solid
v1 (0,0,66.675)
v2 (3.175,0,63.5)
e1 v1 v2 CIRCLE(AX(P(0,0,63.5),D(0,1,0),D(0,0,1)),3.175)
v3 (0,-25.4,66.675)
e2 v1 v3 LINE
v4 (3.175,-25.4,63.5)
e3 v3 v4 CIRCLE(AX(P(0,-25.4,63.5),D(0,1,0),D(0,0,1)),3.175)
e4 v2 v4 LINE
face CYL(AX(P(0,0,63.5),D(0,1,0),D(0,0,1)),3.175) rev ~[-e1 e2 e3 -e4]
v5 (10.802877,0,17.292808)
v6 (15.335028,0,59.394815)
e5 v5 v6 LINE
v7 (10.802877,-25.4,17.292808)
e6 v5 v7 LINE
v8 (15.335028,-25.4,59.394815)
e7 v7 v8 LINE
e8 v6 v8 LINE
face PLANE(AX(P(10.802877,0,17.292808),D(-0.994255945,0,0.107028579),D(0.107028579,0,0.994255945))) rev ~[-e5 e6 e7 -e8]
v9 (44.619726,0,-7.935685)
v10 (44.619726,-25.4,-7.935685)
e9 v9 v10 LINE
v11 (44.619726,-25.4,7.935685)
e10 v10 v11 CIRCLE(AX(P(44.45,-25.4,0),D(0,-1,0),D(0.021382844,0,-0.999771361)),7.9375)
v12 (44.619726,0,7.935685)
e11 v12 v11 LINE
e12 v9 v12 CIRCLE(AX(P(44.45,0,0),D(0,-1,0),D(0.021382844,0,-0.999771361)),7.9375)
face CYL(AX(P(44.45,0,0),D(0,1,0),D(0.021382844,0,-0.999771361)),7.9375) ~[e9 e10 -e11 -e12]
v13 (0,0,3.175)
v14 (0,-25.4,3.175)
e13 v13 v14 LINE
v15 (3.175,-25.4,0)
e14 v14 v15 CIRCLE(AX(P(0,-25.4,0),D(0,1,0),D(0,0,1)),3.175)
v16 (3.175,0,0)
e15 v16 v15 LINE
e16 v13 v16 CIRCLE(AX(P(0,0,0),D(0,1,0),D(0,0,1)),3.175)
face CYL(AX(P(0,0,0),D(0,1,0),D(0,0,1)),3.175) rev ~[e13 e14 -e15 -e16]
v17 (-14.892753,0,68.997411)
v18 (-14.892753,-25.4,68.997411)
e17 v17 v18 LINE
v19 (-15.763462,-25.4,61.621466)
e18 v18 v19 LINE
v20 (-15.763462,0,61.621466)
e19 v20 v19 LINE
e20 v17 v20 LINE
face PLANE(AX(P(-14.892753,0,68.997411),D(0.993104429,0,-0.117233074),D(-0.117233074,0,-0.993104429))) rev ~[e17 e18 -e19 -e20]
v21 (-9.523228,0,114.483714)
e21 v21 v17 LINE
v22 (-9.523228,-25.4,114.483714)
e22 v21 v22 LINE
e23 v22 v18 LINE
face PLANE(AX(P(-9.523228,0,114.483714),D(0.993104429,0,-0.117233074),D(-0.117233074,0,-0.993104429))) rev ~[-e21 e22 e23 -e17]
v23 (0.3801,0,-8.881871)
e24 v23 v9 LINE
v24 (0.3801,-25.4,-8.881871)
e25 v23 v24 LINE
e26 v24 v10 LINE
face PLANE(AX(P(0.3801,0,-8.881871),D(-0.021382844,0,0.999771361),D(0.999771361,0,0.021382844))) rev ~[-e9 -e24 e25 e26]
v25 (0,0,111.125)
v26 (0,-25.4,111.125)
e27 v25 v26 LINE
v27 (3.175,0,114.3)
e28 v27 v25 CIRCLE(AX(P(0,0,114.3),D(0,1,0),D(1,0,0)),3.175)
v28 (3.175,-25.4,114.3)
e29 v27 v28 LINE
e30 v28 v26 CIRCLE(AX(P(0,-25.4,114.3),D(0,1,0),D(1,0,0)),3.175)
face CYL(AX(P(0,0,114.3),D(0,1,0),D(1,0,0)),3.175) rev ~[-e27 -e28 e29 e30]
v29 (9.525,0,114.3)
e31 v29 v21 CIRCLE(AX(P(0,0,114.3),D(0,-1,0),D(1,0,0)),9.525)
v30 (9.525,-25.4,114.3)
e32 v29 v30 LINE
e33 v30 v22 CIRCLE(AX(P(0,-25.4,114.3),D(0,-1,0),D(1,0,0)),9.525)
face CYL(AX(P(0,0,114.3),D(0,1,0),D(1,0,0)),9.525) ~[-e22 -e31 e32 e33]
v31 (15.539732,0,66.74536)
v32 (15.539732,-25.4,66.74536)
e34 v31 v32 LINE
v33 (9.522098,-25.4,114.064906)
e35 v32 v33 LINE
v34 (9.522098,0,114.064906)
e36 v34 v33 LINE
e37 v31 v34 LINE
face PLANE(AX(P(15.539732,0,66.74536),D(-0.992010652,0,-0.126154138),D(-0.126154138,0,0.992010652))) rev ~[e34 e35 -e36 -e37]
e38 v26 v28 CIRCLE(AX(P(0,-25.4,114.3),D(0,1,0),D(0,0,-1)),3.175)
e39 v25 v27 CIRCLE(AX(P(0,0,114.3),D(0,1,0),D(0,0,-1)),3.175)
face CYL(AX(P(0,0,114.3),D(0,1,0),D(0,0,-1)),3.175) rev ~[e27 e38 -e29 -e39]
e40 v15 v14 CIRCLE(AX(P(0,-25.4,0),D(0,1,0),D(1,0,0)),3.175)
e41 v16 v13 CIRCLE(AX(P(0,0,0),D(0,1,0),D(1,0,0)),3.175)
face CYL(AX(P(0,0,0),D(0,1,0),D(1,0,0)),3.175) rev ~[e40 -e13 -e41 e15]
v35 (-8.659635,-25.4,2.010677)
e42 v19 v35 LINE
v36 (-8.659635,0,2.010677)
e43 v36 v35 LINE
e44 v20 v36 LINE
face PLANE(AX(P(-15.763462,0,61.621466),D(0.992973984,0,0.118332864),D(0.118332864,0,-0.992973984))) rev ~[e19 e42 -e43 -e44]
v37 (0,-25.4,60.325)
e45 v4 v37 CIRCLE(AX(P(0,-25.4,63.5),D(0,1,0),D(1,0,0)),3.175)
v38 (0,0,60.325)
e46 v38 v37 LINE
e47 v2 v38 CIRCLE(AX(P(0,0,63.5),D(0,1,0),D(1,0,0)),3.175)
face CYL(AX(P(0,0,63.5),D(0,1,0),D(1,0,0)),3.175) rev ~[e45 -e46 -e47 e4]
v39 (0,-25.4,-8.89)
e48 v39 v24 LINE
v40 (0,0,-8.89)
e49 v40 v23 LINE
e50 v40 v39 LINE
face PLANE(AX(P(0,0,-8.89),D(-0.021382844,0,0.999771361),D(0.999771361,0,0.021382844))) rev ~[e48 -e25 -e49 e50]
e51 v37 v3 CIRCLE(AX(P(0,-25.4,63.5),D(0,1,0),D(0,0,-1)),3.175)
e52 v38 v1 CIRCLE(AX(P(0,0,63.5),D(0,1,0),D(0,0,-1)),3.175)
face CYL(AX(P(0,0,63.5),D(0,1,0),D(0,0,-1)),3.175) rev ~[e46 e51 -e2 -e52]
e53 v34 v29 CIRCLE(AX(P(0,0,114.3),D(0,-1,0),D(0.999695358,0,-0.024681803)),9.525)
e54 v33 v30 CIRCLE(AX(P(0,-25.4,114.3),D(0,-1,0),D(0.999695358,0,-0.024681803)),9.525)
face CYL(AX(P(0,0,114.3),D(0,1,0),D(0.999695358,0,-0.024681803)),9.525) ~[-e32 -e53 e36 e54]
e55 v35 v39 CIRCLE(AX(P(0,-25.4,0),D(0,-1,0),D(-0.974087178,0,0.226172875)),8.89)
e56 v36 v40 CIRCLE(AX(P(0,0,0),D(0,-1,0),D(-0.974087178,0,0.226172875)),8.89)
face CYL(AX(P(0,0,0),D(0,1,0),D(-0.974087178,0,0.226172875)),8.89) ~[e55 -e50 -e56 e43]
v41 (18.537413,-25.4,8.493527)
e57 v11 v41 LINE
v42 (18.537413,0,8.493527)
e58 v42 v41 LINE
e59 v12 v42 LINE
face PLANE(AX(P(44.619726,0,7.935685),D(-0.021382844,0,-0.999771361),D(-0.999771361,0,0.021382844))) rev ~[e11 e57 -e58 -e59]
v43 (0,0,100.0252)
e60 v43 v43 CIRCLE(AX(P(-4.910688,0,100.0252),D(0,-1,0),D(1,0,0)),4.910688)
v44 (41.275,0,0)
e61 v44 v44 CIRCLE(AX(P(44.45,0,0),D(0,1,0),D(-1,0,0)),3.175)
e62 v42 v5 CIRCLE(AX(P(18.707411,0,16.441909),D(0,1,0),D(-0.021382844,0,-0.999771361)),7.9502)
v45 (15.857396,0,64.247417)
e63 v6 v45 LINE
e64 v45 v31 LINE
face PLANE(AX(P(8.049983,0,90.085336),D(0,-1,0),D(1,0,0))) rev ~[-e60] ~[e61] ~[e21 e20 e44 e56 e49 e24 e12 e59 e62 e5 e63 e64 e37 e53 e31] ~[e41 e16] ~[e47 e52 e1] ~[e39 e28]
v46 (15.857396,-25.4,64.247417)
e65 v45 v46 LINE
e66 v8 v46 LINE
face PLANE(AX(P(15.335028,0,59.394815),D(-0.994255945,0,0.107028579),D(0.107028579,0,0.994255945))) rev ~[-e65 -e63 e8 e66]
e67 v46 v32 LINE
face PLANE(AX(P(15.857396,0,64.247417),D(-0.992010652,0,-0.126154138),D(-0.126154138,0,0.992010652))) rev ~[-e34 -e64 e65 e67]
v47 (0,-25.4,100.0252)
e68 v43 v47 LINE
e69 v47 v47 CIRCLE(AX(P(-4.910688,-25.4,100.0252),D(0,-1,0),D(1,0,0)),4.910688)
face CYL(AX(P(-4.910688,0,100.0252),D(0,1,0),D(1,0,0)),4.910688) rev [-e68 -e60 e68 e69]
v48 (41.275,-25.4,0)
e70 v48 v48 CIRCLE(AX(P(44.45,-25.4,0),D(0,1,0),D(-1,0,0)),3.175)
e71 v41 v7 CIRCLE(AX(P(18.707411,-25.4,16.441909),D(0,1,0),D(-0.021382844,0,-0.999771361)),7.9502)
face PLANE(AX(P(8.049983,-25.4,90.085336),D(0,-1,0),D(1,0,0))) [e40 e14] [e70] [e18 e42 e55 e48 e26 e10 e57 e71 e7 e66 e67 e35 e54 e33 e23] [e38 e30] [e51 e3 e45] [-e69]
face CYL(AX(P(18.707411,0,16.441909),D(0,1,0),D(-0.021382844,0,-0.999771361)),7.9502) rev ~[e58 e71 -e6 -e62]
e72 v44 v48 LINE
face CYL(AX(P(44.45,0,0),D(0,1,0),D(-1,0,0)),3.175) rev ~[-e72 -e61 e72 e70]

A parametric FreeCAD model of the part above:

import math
import FreeCAD as App
import Part
import Sketcher
Q = App.Units.Quantity

doc = App.newDocument("Part")
body = doc.addObject("PartDesign::Body", "Body")

sketch1 = body.newObject("Sketcher::SketchObject", "Sketch")
sketch1.AttachmentSupport = (doc.getObject("XZ_Plane"), [""])
sketch1.MapMode = "FlatFace"
sketch1.addGeometry([
    Part.LineSegment(App.Vector(15.54, 66.75, 0), App.Vector(9.52, 114.06, 0)),
    Part.ArcOfCircle(Part.Circle(App.Vector(0, 114.3, 0), App.Vector(0, 0, 1), 9.53), math.radians(-1.41), math.radians(0)),
    Part.ArcOfCircle(Part.Circle(App.Vector(0, 114.3, 0), App.Vector(0, 0, 1), 9.53), math.radians(0), math.radians(179)),
    Part.LineSegment(App.Vector(-9.52, 114.48, 0), App.Vector(-14.89, 69, 0)),
    Part.LineSegment(App.Vector(-14.89, 69, 0), App.Vector(-15.76, 61.62, 0)),
    Part.LineSegment(App.Vector(-15.76, 61.62, 0), App.Vector(-8.66, 2.01, 0)),
    Part.ArcOfCircle(Part.Circle(App.Vector(0, 0, 0), App.Vector(0, 0, 1), 8.89), math.radians(167), math.radians(270)),
    Part.LineSegment(App.Vector(0, -8.89, 0), App.Vector(0.38, -8.88, 0)),
    Part.LineSegment(App.Vector(0.38, -8.88, 0), App.Vector(44.62, -7.94, 0)),
    Part.ArcOfCircle(Part.Circle(App.Vector(44.45, 0, 0), App.Vector(0, 0, 1), 7.94), math.radians(-89), math.radians(89)),
    Part.LineSegment(App.Vector(44.62, 7.94, 0), App.Vector(18.54, 8.49, 0)),
    Part.ArcOfCircle(Part.Circle(App.Vector(18.71, 16.44, 0), App.Vector(0, 0, 1), 7.95), math.radians(174), math.radians(269)),
    Part.LineSegment(App.Vector(10.8, 17.29, 0), App.Vector(15.34, 59.39, 0)),
    Part.LineSegment(App.Vector(15.34, 59.39, 0), App.Vector(15.86, 64.25, 0)),
    Part.LineSegment(App.Vector(15.86, 64.25, 0), App.Vector(15.54, 66.75, 0)),
    Part.ArcOfCircle(Part.Circle(App.Vector(0, 63.5, 0), App.Vector(0, 0, 1), 3.17), math.radians(90), math.radians(270)),
    Part.ArcOfCircle(Part.Circle(App.Vector(0, 63.5, 0), App.Vector(0, 0, 1), 3.17), math.radians(0), math.radians(90)),
    Part.ArcOfCircle(Part.Circle(App.Vector(0, 63.5, 0), App.Vector(0, 0, 1), 3.17), math.radians(-90), math.radians(0)),
    Part.Circle(App.Vector(-4.91, 100.03, 0), App.Vector(0, 0, 1), 4.91),
    Part.ArcOfCircle(Part.Circle(App.Vector(0, 114.3, 0), App.Vector(0, 0, 1), 3.17), math.radians(0), math.radians(270)),
    Part.ArcOfCircle(Part.Circle(App.Vector(0, 114.3, 0), App.Vector(0, 0, 1), 3.17), math.radians(-90), math.radians(0)),
    Part.ArcOfCircle(Part.Circle(App.Vector(0, 0, 0), App.Vector(0, 0, 1), 3.17), math.radians(0), math.radians(90)),
    Part.ArcOfCircle(Part.Circle(App.Vector(0, 0, 0), App.Vector(0, 0, 1), 3.17), math.radians(90), math.radians(360)),
    Part.Circle(App.Vector(44.45, 0, 0), App.Vector(0, 0, 1), 3.17),
], False)
sketch1.addConstraint([
    Sketcher.Constraint("Coincident", 0, 2, 1, 1),
    Sketcher.Constraint("Tangent", 1, 2, 2, 1),
    Sketcher.Constraint("Coincident", 2, 2, 3, 1),
    Sketcher.Constraint("Coincident", 3, 2, 4, 1),
    Sketcher.Constraint("Coincident", 4, 2, 5, 1),
    Sketcher.Constraint("Coincident", 5, 2, 6, 1),
    Sketcher.Constraint("Coincident", 6, 2, 7, 1),
    Sketcher.Constraint("Coincident", 7, 2, 8, 1),
    Sketcher.Constraint("Tangent", 8, 2, 9, 1),
    Sketcher.Constraint("Tangent", 9, 2, 10, 1),
    Sketcher.Constraint("Tangent", 10, 2, 11, 2),
    Sketcher.Constraint("Tangent", 11, 1, 12, 1),
    Sketcher.Constraint("Coincident", 12, 2, 13, 1),
    Sketcher.Constraint("Coincident", 13, 2, 14, 1),
    Sketcher.Constraint("Coincident", 14, 2, 0, 1),
    Sketcher.Constraint("Tangent", 15, 1, 16, 2),
    Sketcher.Constraint("Tangent", 16, 1, 17, 2),
    Sketcher.Constraint("Tangent", 17, 1, 15, 2),
    Sketcher.Constraint("Tangent", 19, 1, 20, 2),
    Sketcher.Constraint("Coincident", 20, 1, 19, 2),
    Sketcher.Constraint("Tangent", 21, 1, 22, 2),
    Sketcher.Constraint("Coincident", 22, 1, 21, 2),
    Sketcher.Constraint("Coincident", 6, 3, -1, 1),
    Sketcher.Constraint("Coincident", 21, 3, -1, 1),
    Sketcher.Constraint("Coincident", 19, 3, 1, 3),
    Sketcher.Constraint("Coincident", 23, 3, 9, 3),
    Sketcher.Constraint("Equal", 1, 2),
    Sketcher.Constraint("Equal", 17, 19),
    Sketcher.Constraint("Equal", 20, 21),
    Sketcher.Constraint("Equal", 22, 23),
    Sketcher.Constraint("Symmetric", 8, 2, 9, 2, -1),
    Sketcher.Constraint("PointOnObject", 1, 3, -2),
    Sketcher.Constraint("PointOnObject", 15, 3, -2),
    Sketcher.Constraint("PointOnObject", 6, 2, -2),
    Sketcher.Constraint("PointOnObject", 15, 1, -2),
    Sketcher.Constraint("PointOnObject", 17, 1, -2),
    Sketcher.Constraint("PointOnObject", 20, 1, -2),
    Sketcher.Constraint("PointOnObject", 21, 1, -1),
    Sketcher.Constraint("PointOnObject", 22, 1, -2),
    Sketcher.Constraint("Parallel", 3, 4),
    Sketcher.Constraint("Parallel", 7, 8),
    Sketcher.Constraint("Parallel", 12, 13),
    Sketcher.Constraint("Parallel", 0, 14),
    Sketcher.Constraint("Horizontal", 20, 3, 1, 2),
    Sketcher.Constraint("Horizontal", 17, 3, 16, 1),
    Sketcher.Constraint("Horizontal", 1, 2, 19, 1),
    Sketcher.Constraint("Diameter", 23, Q("0.25 in")),
    Sketcher.Constraint("Radius", 6, Q("0.35 in")),
    Sketcher.Constraint("Radius", 1, Q("0.375 in")),
    Sketcher.Constraint("Radius", 9, Q("0.3125 in")),
    Sketcher.Constraint("Radius", 11, Q("0.313 in")),
    Sketcher.Constraint("DistanceY", 15, 3, 2, 3, Q("2 in")),
    Sketcher.Constraint("DistanceY", -1, 1, 1, 3, Q("4.5 in")),
    Sketcher.Constraint("DistanceX", -1, 1, 9, 3, Q("1.75 in")),
    Sketcher.Constraint("DistanceY", -1, 1, 18, 3, Q("3.938 in")),
    Sketcher.Constraint("Diameter", 18, 9.821376),
    Sketcher.Constraint("DistanceY", 11, 3, 11, 1, Q("0.0334999 in")),
    Sketcher.Constraint("DistanceX", -1, 1, 0, 2, 9.522098),
    Sketcher.Constraint("DistanceX", -1, 1, 7, 2, 0.3801),
    Sketcher.Constraint("DistanceY", 12, 2, 13, 2, 4.852602),
    Sketcher.Constraint("Distance", 4, 7.42716),
    Sketcher.Constraint("Distance", 5, 60.032579),
    Sketcher.Constraint("Distance", 10, 26.088278),
    Sketcher.Constraint("Distance", 12, 42.345241),
    Sketcher.Constraint("Distance", 14, 2.518061),
    Sketcher.Constraint("DistanceX", 2, 2, -1, 1, 9.523228),
    Sketcher.Constraint("DistanceY", -1, 1, 3, 2, 68.997411),
    Sketcher.Constraint("DistanceX", 4, 2, -1, 1, 15.763462),
    Sketcher.Constraint("DistanceX", 2, 2, 18, 3, 4.61254),
])
pad1 = body.newObject("PartDesign::Pad", "Pad")
pad1.Profile = sketch1
pad1.Length = Q("1 in")

doc.recompute()
